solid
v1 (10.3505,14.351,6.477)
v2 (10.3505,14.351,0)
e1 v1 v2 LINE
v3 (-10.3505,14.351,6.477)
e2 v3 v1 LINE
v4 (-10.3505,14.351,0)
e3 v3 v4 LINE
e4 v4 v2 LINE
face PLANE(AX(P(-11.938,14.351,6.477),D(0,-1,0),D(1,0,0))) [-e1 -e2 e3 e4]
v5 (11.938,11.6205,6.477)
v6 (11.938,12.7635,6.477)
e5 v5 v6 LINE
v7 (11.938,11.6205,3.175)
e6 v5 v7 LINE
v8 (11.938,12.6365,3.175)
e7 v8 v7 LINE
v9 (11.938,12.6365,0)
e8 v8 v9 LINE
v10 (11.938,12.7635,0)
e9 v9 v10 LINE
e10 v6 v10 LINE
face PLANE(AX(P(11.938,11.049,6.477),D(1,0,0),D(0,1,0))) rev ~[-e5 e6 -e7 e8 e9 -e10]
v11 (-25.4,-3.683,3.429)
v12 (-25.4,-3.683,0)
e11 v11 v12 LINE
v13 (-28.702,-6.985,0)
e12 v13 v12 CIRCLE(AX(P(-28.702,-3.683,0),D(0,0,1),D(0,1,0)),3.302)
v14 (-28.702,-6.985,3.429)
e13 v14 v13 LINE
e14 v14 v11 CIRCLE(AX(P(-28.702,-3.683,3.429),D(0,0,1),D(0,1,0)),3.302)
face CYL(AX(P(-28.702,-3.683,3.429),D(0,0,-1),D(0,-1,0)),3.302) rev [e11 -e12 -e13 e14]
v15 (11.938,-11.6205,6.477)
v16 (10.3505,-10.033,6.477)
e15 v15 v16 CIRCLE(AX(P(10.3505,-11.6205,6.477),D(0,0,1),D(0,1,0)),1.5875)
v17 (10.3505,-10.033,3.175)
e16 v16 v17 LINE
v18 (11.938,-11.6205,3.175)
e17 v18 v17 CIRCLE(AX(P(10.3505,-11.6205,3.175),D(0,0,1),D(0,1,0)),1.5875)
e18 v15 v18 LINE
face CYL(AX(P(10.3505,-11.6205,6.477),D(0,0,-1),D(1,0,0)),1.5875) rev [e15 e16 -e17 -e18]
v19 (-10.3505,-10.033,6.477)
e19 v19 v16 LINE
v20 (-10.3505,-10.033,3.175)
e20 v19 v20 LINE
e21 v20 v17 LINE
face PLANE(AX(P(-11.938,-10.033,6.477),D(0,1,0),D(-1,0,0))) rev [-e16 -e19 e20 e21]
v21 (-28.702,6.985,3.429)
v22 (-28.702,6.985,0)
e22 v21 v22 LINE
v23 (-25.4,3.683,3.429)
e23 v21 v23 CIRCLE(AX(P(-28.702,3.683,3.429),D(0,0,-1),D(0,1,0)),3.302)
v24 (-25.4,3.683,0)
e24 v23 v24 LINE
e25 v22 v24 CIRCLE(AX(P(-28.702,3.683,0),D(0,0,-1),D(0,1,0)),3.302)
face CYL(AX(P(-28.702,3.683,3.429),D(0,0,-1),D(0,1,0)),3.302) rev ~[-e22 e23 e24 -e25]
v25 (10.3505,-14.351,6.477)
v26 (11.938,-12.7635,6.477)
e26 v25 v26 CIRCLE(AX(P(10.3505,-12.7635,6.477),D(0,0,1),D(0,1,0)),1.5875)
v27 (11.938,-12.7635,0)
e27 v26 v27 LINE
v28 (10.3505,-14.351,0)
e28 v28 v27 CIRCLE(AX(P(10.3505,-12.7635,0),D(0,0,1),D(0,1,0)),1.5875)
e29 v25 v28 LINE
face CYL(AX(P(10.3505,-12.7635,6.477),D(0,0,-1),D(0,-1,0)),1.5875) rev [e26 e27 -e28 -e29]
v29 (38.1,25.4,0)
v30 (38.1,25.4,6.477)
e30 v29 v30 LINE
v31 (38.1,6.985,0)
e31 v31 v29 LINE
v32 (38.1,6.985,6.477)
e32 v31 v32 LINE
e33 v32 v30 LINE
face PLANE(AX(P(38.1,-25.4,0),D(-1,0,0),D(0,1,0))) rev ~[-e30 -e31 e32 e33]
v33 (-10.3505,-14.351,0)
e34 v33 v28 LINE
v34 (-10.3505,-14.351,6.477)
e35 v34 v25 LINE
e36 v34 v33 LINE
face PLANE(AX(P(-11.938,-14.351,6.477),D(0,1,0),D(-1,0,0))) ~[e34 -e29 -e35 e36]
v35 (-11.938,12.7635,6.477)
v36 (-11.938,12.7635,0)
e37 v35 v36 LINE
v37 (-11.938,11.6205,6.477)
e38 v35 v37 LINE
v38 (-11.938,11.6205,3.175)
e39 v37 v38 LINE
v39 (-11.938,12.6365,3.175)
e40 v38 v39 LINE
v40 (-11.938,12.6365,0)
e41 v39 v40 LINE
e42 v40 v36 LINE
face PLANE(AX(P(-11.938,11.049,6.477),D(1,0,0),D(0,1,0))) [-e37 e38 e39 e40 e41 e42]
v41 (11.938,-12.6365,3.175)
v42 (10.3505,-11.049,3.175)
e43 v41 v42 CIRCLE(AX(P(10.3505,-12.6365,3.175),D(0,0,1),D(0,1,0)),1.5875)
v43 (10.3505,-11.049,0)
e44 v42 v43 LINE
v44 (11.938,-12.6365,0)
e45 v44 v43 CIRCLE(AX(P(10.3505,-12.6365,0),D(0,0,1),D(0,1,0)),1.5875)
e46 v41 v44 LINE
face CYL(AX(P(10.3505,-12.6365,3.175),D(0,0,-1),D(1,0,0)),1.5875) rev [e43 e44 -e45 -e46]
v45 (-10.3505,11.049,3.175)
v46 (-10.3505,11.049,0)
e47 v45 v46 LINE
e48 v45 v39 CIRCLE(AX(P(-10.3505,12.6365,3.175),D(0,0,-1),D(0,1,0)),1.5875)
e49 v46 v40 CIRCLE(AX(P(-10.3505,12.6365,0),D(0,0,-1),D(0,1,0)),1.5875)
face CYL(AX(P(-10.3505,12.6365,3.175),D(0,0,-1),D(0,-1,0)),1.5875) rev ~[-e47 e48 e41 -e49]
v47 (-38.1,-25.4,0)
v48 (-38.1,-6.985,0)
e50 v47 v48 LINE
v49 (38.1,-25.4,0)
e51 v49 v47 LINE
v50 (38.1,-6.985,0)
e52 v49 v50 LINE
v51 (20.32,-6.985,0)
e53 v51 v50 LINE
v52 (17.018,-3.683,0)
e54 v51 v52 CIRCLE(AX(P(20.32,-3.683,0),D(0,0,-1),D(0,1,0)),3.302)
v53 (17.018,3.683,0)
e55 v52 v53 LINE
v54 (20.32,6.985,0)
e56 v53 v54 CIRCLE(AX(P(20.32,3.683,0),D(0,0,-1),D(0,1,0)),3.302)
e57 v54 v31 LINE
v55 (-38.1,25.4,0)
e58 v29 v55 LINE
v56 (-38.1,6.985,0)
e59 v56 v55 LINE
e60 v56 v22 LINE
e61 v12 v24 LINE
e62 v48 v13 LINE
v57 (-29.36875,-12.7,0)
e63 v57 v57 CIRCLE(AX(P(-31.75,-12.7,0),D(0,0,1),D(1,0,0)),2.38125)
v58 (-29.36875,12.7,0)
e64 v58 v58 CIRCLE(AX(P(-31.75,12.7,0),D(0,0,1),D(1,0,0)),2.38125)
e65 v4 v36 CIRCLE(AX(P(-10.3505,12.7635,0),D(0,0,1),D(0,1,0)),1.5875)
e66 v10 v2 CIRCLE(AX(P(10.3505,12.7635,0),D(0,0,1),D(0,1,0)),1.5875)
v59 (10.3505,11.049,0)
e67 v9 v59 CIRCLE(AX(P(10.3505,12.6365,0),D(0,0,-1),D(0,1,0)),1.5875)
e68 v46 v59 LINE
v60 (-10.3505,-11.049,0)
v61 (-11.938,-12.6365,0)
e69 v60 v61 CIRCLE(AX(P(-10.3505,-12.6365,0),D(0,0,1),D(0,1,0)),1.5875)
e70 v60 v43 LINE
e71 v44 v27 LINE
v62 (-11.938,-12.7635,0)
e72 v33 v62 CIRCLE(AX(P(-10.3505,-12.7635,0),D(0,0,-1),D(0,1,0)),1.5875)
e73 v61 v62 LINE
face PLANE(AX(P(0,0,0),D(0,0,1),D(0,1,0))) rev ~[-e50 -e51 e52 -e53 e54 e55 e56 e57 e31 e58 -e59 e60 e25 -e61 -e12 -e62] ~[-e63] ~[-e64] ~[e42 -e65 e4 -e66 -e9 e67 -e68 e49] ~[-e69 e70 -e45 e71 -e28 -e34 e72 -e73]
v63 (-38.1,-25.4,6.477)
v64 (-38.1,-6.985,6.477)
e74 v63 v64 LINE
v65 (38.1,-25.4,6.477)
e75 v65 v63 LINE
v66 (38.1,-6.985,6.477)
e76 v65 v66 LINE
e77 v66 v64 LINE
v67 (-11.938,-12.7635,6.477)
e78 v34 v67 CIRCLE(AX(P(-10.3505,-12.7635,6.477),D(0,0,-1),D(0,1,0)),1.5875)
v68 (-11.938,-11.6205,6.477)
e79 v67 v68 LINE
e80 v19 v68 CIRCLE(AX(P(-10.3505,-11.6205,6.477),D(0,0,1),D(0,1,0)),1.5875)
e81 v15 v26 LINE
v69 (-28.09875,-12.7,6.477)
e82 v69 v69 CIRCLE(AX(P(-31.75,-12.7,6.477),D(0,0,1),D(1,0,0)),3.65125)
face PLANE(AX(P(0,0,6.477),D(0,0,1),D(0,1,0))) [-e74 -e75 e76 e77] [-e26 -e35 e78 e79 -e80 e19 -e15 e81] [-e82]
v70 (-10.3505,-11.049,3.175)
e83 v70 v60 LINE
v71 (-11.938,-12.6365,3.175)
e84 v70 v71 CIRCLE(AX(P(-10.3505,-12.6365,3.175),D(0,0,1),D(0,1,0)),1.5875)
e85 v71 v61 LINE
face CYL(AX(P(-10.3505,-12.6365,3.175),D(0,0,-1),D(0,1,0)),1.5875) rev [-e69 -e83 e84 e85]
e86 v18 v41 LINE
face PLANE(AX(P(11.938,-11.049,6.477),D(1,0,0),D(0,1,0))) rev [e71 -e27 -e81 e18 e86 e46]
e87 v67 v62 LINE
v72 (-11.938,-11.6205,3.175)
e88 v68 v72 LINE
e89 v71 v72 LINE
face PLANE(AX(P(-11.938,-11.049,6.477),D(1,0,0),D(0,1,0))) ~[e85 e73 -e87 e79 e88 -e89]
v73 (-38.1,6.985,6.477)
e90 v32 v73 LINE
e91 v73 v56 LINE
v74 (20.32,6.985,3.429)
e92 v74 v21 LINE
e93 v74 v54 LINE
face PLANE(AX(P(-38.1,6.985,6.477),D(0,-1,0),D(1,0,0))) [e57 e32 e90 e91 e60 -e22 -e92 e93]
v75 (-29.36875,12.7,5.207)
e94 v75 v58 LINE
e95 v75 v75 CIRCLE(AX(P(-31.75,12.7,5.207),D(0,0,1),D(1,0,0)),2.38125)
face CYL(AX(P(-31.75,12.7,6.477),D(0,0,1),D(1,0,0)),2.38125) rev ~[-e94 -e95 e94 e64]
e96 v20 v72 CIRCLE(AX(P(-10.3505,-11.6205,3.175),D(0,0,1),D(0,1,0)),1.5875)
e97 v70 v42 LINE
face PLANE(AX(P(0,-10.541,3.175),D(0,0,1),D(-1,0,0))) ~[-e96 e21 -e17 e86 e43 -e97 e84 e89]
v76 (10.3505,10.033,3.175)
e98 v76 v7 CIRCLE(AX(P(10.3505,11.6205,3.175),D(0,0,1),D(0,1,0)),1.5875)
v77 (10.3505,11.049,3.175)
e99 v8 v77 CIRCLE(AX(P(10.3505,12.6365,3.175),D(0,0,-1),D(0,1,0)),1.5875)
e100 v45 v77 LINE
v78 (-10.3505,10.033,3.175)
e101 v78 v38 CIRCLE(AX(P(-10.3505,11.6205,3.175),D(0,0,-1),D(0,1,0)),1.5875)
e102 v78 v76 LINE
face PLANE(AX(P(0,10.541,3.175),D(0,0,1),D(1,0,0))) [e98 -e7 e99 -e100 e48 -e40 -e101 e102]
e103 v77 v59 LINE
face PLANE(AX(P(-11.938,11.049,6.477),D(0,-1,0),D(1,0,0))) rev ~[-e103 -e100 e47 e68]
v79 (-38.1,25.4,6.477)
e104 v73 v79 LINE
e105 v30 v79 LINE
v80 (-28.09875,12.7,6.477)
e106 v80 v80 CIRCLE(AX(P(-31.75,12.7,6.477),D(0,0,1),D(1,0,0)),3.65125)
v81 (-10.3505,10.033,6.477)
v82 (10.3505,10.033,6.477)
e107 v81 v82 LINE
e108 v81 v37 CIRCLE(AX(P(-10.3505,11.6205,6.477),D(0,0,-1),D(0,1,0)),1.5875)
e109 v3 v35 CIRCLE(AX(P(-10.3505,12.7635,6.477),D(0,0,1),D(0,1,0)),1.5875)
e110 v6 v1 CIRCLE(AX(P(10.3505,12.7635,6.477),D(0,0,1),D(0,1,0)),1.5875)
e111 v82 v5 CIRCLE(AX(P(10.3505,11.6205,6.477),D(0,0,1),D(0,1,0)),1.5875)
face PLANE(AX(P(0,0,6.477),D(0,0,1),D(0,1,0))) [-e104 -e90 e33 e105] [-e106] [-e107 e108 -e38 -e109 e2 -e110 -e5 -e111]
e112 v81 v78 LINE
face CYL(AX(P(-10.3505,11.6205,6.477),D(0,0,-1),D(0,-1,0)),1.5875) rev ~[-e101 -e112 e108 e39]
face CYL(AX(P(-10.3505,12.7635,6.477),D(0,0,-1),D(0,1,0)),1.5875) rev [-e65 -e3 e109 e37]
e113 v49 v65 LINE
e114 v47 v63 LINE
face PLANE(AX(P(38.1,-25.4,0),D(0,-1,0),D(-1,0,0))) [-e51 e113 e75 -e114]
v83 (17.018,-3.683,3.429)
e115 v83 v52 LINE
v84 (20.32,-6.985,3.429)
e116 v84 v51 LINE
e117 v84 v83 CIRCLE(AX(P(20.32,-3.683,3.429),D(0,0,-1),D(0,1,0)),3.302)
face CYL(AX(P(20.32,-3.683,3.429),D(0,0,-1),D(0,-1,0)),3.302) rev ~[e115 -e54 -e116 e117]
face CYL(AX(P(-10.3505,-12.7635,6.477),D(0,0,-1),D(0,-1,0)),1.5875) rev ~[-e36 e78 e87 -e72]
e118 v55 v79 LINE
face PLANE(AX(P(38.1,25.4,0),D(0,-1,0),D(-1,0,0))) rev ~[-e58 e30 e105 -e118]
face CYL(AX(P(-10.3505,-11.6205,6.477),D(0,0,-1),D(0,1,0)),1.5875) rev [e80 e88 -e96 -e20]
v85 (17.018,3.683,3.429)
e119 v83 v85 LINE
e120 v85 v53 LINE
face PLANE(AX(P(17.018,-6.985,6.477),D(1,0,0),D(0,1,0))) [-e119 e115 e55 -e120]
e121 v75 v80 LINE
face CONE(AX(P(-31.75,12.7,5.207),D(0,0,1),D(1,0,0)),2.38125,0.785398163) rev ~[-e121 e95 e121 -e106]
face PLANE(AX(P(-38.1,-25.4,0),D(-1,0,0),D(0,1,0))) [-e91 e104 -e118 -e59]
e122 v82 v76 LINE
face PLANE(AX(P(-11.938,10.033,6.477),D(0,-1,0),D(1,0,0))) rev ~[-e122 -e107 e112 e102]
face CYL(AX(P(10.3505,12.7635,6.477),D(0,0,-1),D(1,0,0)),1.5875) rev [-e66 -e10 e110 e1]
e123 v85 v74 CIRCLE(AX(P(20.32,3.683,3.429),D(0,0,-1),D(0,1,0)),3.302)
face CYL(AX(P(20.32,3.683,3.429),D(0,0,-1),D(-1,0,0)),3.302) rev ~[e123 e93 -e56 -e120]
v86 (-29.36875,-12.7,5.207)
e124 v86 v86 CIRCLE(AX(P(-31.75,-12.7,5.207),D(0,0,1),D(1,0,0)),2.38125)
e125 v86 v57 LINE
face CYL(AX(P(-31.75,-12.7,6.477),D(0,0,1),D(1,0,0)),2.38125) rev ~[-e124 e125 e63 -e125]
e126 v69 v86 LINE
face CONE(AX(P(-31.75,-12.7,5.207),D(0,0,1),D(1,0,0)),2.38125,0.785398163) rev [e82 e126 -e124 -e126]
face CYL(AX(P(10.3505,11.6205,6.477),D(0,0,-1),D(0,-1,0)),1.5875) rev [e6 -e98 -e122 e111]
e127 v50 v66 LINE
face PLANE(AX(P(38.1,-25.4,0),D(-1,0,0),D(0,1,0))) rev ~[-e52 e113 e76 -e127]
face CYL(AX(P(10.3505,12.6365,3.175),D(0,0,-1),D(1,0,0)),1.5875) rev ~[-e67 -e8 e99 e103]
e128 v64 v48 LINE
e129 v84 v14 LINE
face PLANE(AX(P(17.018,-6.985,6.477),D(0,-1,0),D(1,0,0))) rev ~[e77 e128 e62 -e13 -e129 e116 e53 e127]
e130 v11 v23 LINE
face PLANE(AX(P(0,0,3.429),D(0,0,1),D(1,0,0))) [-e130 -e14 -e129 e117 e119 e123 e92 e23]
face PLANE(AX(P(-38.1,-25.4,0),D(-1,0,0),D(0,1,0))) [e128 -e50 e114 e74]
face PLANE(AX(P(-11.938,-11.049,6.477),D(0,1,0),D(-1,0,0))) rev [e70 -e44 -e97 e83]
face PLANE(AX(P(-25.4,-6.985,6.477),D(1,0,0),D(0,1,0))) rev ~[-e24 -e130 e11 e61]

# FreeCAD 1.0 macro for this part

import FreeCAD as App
import Part
import Sketcher
Q = App.Units.Quantity


def edges_at(feature, points):
    """Names of the edges that pass closest to the given points."""
    edges = feature.Shape.Edges
    near = lambda p: min(range(len(edges)), key=lambda i: edges[i].distToShape(Part.Vertex(*p))[0])
    return sorted({f"Edge{near(p) + 1}" for p in points})

doc = App.newDocument("Part")
body = doc.addObject("PartDesign::Body", "Body")

sketch1 = body.newObject("Sketcher::SketchObject", "Sketch")
sketch1.AttachmentSupport = (doc.getObject("XY_Plane"), [""])
sketch1.MapMode = "FlatFace"
sketch1.addGeometry([
    Part.LineSegment(App.Vector(-38, -25, 0), App.Vector(38, -25, 0)),
    Part.LineSegment(App.Vector(38, -25, 0), App.Vector(38, 25, 0)),
    Part.LineSegment(App.Vector(38, 25, 0), App.Vector(-38, 25, 0)),
    Part.LineSegment(App.Vector(-38, 25, 0), App.Vector(-38, -25, 0)),
], False)
sketch1.addConstraint([
    Sketcher.Constraint("Coincident", 0, 2, 1, 1),
    Sketcher.Constraint("Coincident", 1, 2, 2, 1),
    Sketcher.Constraint("Coincident", 2, 2, 3, 1),
    Sketcher.Constraint("Coincident", 3, 2, 0, 1),
    Sketcher.Constraint("Horizontal", 0),
    Sketcher.Constraint("Vertical", 1),
    Sketcher.Constraint("Horizontal", 2),
    Sketcher.Constraint("Vertical", 3),
    Sketcher.Constraint("Symmetric", 0, 2, 2, 2, -1, 1),
    Sketcher.Constraint("DistanceX", 0, 1, 0, 2, Q("3 in")),
    Sketcher.Constraint("DistanceY", 1, 1, 1, 2, Q("2 in")),
])
pad1 = body.newObject("PartDesign::Pad", "Pad")
pad1.Profile = sketch1
pad1.Length = Q("0.255 in")

sketch2 = body.newObject("Sketcher::SketchObject", "Sketch001")
sketch2.AttachmentSupport = (doc.getObject("XY_Plane"), [""])
sketch2.MapMode = "FlatFace"
sketch2.AttachmentOffset = App.Placement(App.Vector(0, 0, 0.255 * 25.4), App.Rotation())
sketch2.addGeometry([
    Part.LineSegment(App.Vector(-38, 7, 0), App.Vector(-38, -7, 0)),
    Part.LineSegment(App.Vector(-38, -7, 0), App.Vector(38, -7, 0)),
    Part.LineSegment(App.Vector(38, -7, 0), App.Vector(38, 7, 0)),
    Part.LineSegment(App.Vector(38, 7, 0), App.Vector(-38, 7, 0)),
], False)
sketch2.addConstraint([
    Sketcher.Constraint("Coincident", 0, 2, 1, 1),
    Sketcher.Constraint("Coincident", 1, 2, 2, 1),
    Sketcher.Constraint("Coincident", 2, 2, 3, 1),
    Sketcher.Constraint("Coincident", 3, 2, 0, 1),
    Sketcher.Constraint("Vertical", 0),
    Sketcher.Constraint("Horizontal", 1),
    Sketcher.Constraint("Vertical", 2),
    Sketcher.Constraint("Horizontal", 3),
    Sketcher.Constraint("Symmetric", 0, 2, 2, 2, -1, 1),
    Sketcher.Constraint("DistanceX", 1, 1, 1, 2, Q("3 in")),
    Sketcher.Constraint("DistanceY", 0, 2, 0, 1, Q("0.55 in")),
])
pocket1 = body.newObject("PartDesign::Pocket", "Pocket")
pocket1.Profile = sketch2
pocket1.Length = Q("0.12 in")

sketch3 = body.newObject("Sketcher::SketchObject", "Sketch002")
sketch3.AttachmentSupport = (doc.getObject("XY_Plane"), [""])
sketch3.MapMode = "FlatFace"
sketch3.AttachmentOffset = App.Placement(App.Vector(0, 0, 0.255 * 25.4), App.Rotation())
sketch3.addGeometry([
    Part.Circle(App.Vector(-31.8, 12.7, 0), App.Vector(0, 0, 1), 2.4),
    Part.Circle(App.Vector(-31.8, -12.7, 0), App.Vector(0, 0, 1), 2.4),
    Part.LineSegment(App.Vector(-38.1, 7, 0), App.Vector(-38.1, -7, 0)),
    Part.LineSegment(App.Vector(-38.1, -7, 0), App.Vector(-25.4, -7, 0)),
    Part.LineSegment(App.Vector(-25.4, -7, 0), App.Vector(-25.4, 7, 0)),
    Part.LineSegment(App.Vector(-25.4, 7, 0), App.Vector(-38.1, 7, 0)),
    Part.LineSegment(App.Vector(17, 7, 0), App.Vector(17, -7, 0)),
    Part.LineSegment(App.Vector(17, -7, 0), App.Vector(38.1, -7, 0)),
    Part.LineSegment(App.Vector(38.1, -7, 0), App.Vector(38.1, 7, 0)),
    Part.LineSegment(App.Vector(38.1, 7, 0), App.Vector(17, 7, 0)),
], False)
sketch3.addConstraint([
    Sketcher.Constraint("Coincident", 2, 2, 3, 1),
    Sketcher.Constraint("Coincident", 3, 2, 4, 1),
    Sketcher.Constraint("Coincident", 4, 2, 5, 1),
    Sketcher.Constraint("Coincident", 5, 2, 2, 1),
    Sketcher.Constraint("Coincident", 6, 2, 7, 1),
    Sketcher.Constraint("Coincident", 7, 2, 8, 1),
    Sketcher.Constraint("Coincident", 8, 2, 9, 1),
    Sketcher.Constraint("Coincident", 9, 2, 6, 1),
    Sketcher.Constraint("Vertical", 2),
    Sketcher.Constraint("Horizontal", 3),
    Sketcher.Constraint("Vertical", 4),
    Sketcher.Constraint("Horizontal", 5),
    Sketcher.Constraint("Vertical", 6),
    Sketcher.Constraint("Horizontal", 7),
    Sketcher.Constraint("Vertical", 8),
    Sketcher.Constraint("Horizontal", 9),
    Sketcher.Constraint("Equal", 0, 1),
    Sketcher.Constraint("Symmetric", 5, 2, 7, 2, -1, 1),
    Sketcher.Constraint("Symmetric", 0, 3, 1, 3, -1),
    Sketcher.Constraint("Horizontal", 3, 2, 6, 2),
    Sketcher.Constraint("Horizontal", 5, 2, 8, 2),
    Sketcher.Constraint("Diameter", 0, Q("0.1875 in")),
    Sketcher.Constraint("DistanceX", 3, 1, 3, 2, Q("0.5 in")),
    Sketcher.Constraint("DistanceX", 3, 2, -1, 1, Q("1 in")),
    Sketcher.Constraint("DistanceY", 1, 3, 0, 3, Q("1 in")),
    Sketcher.Constraint("DistanceX", 7, 1, 7, 2, Q("0.83 in")),
    Sketcher.Constraint("DistanceY", 2, 2, 2, 1, Q("0.55 in")),
    Sketcher.Constraint("DistanceX", 0, 3, -1, 1, Q("1.25 in")),
])
pocket2 = body.newObject("PartDesign::Pocket", "Pocket001")
pocket2.Profile = sketch3
pocket2.Type = "ThroughAll"
doc.recompute()

fillet = body.newObject("PartDesign::Fillet", "Fillet")
fillet.Base = (pocket2, edges_at(pocket2, [
    (-25.4, 6.985, 1.714),
    (-25.4, -6.985, 1.714),
    (17.018, 6.985, 1.714),
    (17.018, -6.985, 1.714),
]))
fillet.Radius = Q("0.13 in")

sketch4 = body.newObject("Sketcher::SketchObject", "Sketch003")
sketch4.AttachmentSupport = (doc.getObject("XY_Plane"), [""])
sketch4.MapMode = "FlatFace"
sketch4.AttachmentOffset = App.Placement(App.Vector(0, 0, 0.255 * 25.4), App.Rotation())
sketch4.addGeometry([
    Part.LineSegment(App.Vector(-11.9, 14.4, 0), App.Vector(-11.9, 11, 0)),
    Part.LineSegment(App.Vector(-11.9, 11, 0), App.Vector(11.9, 11, 0)),
    Part.LineSegment(App.Vector(11.9, 11, 0), App.Vector(11.9, 14.4, 0)),
    Part.LineSegment(App.Vector(11.9, 14.4, 0), App.Vector(-11.9, 14.4, 0)),
], False)
sketch4.addConstraint([
    Sketcher.Constraint("Coincident", 0, 2, 1, 1),
    Sketcher.Constraint("Coincident", 1, 2, 2, 1),
    Sketcher.Constraint("Coincident", 2, 2, 3, 1),
    Sketcher.Constraint("Coincident", 3, 2, 0, 1),
    Sketcher.Constraint("Vertical", 0),
    Sketcher.Constraint("Horizontal", 1),
    Sketcher.Constraint("Vertical", 2),
    Sketcher.Constraint("Horizontal", 3),
    Sketcher.Constraint("DistanceX", 1, 1, 1, 2, Q("0.94 in")),
    Sketcher.Constraint("DistanceY", 0, 2, 0, 1, Q("0.13 in")),
    Sketcher.Constraint("DistanceX", 0, 2, -1, 1, Q("0.47 in")),
    Sketcher.Constraint("DistanceY", -1, 1, 0, 2, Q("0.435 in")),
])
pocket3 = body.newObject("PartDesign::Pocket", "Pocket002")
pocket3.Profile = sketch4
pocket3.Type = "ThroughAll"

sketch5 = body.newObject("Sketcher::SketchObject", "Sketch004")
sketch5.AttachmentSupport = (doc.getObject("XY_Plane"), [""])
sketch5.MapMode = "FlatFace"
sketch5.AttachmentOffset = App.Placement(App.Vector(0, 0, 0.255 * 25.4), App.Rotation())
sketch5.addGeometry([
    Part.LineSegment(App.Vector(-11.9, 11, 0), App.Vector(-11.9, 10, 0)),
    Part.LineSegment(App.Vector(-11.9, 10, 0), App.Vector(11.9, 10, 0)),
    Part.LineSegment(App.Vector(11.9, 10, 0), App.Vector(11.9, 11, 0)),
    Part.LineSegment(App.Vector(11.9, 11, 0), App.Vector(-11.9, 11, 0)),
], False)
sketch5.addConstraint([
    Sketcher.Constraint("Coincident", 0, 2, 1, 1),
    Sketcher.Constraint("Coincident", 1, 2, 2, 1),
    Sketcher.Constraint("Coincident", 2, 2, 3, 1),
    Sketcher.Constraint("Coincident", 3, 2, 0, 1),
    Sketcher.Constraint("Vertical", 0),
    Sketcher.Constraint("Horizontal", 1),
    Sketcher.Constraint("Vertical", 2),
    Sketcher.Constraint("Horizontal", 3),
    Sketcher.Constraint("DistanceX", 1, 1, 1, 2, Q("0.94 in")),
    Sketcher.Constraint("DistanceY", 0, 2, 0, 1, Q("0.04 in")),
    Sketcher.Constraint("DistanceX", 0, 2, -1, 1, Q("0.47 in")),
    Sketcher.Constraint("DistanceY", -1, 1, 0, 2, Q("0.395 in")),
])
pocket4 = body.newObject("PartDesign::Pocket", "Pocket003")
pocket4.Profile = sketch5
pocket4.Length = Q("0.13 in")
doc.recompute()

mirrored = body.newObject("PartDesign::Mirrored", "Mirrored")
mirrored.Originals = [pocket3, pocket4]
mirrored.MirrorPlane = (doc.getObject("XZ_Plane"), [""])
body.Tip = mirrored
doc.recompute()

fillet2 = body.newObject("PartDesign::Fillet", "Fillet001")
fillet2.Base = (mirrored, edges_at(mirrored, [
    (11.938, 14.351, 3.239),
    (11.938, 11.049, 1.587),
    (-11.938, 11.049, 1.587),
    (-11.938, 14.351, 3.239),
    (11.938, -11.049, 1.587),
    (11.938, -14.351, 3.239),
    (-11.938, -14.351, 3.239),
    (-11.938, -11.049, 1.587),
]))
fillet2.Radius = Q("0.0625 in")
doc.recompute()

fillet3 = body.newObject("PartDesign::Fillet", "Fillet002")
fillet3.Base = (fillet2, edges_at(fillet2, [
    (-11.938, 10.033, 4.826),
    (11.938, 10.033, 4.826),
    (-11.938, -10.033, 4.826),
    (11.938, -10.033, 4.826),
]))
fillet3.Radius = Q("0.0625 in")
doc.recompute()

chamfer = body.newObject("PartDesign::Chamfer", "Chamfer")
chamfer.Base = (fillet3, edges_at(fillet3, [(-34.131, 12.7, 6.477), (-34.131, -12.7, 6.477)]))
chamfer.Size = Q("0.05 in")

doc.recompute()
